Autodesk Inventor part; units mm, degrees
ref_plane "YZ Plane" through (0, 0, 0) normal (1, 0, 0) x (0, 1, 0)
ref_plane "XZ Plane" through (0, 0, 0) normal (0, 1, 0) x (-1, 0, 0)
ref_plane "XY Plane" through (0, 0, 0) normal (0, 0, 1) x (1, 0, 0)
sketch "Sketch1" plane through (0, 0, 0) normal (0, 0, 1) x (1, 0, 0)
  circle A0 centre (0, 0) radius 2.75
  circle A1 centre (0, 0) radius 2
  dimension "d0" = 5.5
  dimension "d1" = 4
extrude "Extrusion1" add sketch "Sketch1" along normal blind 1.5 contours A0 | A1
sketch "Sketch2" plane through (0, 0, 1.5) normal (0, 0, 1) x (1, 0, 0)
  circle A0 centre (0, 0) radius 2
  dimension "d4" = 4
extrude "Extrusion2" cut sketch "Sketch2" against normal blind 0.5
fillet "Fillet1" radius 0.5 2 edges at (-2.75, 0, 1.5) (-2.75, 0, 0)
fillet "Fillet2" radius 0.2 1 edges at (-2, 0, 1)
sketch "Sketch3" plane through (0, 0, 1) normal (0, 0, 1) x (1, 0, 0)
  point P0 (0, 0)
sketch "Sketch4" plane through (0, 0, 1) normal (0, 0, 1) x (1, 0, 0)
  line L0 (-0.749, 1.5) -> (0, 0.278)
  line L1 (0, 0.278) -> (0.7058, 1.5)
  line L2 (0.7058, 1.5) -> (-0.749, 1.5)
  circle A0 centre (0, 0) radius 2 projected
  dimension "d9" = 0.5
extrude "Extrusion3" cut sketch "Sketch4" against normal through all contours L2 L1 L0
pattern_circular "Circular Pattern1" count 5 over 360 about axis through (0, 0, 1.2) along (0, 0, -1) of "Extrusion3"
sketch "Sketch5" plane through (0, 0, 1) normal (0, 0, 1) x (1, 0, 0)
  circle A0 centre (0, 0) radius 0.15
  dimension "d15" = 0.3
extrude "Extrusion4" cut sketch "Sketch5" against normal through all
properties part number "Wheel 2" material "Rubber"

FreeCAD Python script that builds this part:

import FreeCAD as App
import Part
import Sketcher
Q = App.Units.Quantity


def edges_at(feature, points):
    """Names of the edges that pass closest to the given points."""
    edges = feature.Shape.Edges
    near = lambda p: min(range(len(edges)), key=lambda i: edges[i].distToShape(Part.Vertex(*p))[0])
    return sorted({f"Edge{near(p) + 1}" for p in points})


def add_polygon(sketch, points):
    """Adds a closed chain of lines whose ends are joined by coincident constraints."""
    first, n = sketch.GeometryCount, len(points)
    for a, b in zip(points, points[1:] + points[:1]):
        sketch.addGeometry(Part.LineSegment(App.Vector(*a, 0), App.Vector(*b, 0)), False)
    for i in range(n):
        sketch.addConstraint(Sketcher.Constraint("Coincident", first + i, 2, first + (i + 1) % n, 1))

doc = App.newDocument("Part")
body = doc.addObject("PartDesign::Body", "Body")

# Sketch on XY plane
sketch1 = body.newObject("Sketcher::SketchObject", "Sketch")
sketch1.AttachmentSupport = (doc.getObject("XY_Plane"), [""])
sketch1.MapMode = "FlatFace"
sketch1.addGeometry(Part.Circle(App.Vector(0, 0, 0), App.Vector(0, 0, 1), 2.8), False)
sketch1.addConstraint([
    Sketcher.Constraint("Coincident", 0, 3, -1, 1),
    Sketcher.Constraint("Diameter", 0, 5.5),
])
pad1 = body.newObject("PartDesign::Pad", "Pad")
pad1.Profile = sketch1
pad1.Length = 1.5

# Sketch on XY plane
sketch2 = body.newObject("Sketcher::SketchObject", "Sketch001")
sketch2.AttachmentSupport = (doc.getObject("XY_Plane"), [""])
sketch2.MapMode = "FlatFace"
sketch2.AttachmentOffset = App.Placement(App.Vector(0, 0, 1.5), App.Rotation())
sketch2.addGeometry(Part.Circle(App.Vector(0, 0, 0), App.Vector(0, 0, 1), 2), False)
sketch2.addConstraint([
    Sketcher.Constraint("Coincident", 0, 3, -1, 1),
    Sketcher.Constraint("Diameter", 0, 4.0),
])
pocket1 = body.newObject("PartDesign::Pocket", "Pocket")
pocket1.Profile = sketch2
pocket1.Length = 0.5
doc.recompute()

fillet = body.newObject("PartDesign::Fillet", "Fillet")
fillet.Base = (pocket1, edges_at(pocket1, [(-2.75, 0, 1.5), (-2.75, 0, 0)]))
fillet.Radius = 0.5
doc.recompute()

fillet2 = body.newObject("PartDesign::Fillet", "Fillet001")
fillet2.Base = (fillet, edges_at(fillet, [(-2, 0, 1)]))
fillet2.Radius = 0.2

# Sketch on XY plane
sketch3 = body.newObject("Sketcher::SketchObject", "Sketch002")
sketch3.AttachmentSupport = (doc.getObject("XY_Plane"), [""])
sketch3.MapMode = "FlatFace"
sketch3.AttachmentOffset = App.Placement(App.Vector(0, 0, 1), App.Rotation())
add_polygon(sketch3, [(0.7, 1.5), (-0.7, 1.5), (0, 0.3)])  # lines 0-2
sketch3.addConstraint([
    Sketcher.Constraint("Horizontal", 0),
    Sketcher.Constraint("PointOnObject", 1, 2, -2),
    Sketcher.Constraint("DistanceY", -1, 1, 0, 2, 1.5),
    Sketcher.Constraint("Angle", 2, Q("59.9902 deg")),
    Sketcher.Constraint("DistanceX", 0, 2, 0, 1, 1.4548),
    Sketcher.Constraint("DistanceX", 0, 2, -1, 1, 0.749),
])
pocket2 = body.newObject("PartDesign::Pocket", "Pocket001")
pocket2.Profile = sketch3
pocket2.Type = "ThroughAll"
doc.recompute()

polarpattern = body.newObject("PartDesign::PolarPattern", "PolarPattern")
polarpattern.Originals = [pocket2]
polarpattern.Axis = (doc.getObject("Z_Axis"), [""])
polarpattern.Angle = 360
polarpattern.Occurrences = 5
body.Tip = polarpattern

# Sketch on XY plane
sketch4 = body.newObject("Sketcher::SketchObject", "Sketch003")
sketch4.AttachmentSupport = (doc.getObject("XY_Plane"), [""])
sketch4.MapMode = "FlatFace"
sketch4.AttachmentOffset = App.Placement(App.Vector(0, 0, 1), App.Rotation())
sketch4.addGeometry(Part.Circle(App.Vector(0, 0, 0), App.Vector(0, 0, 1), 0.15), False)
sketch4.addConstraint([
    Sketcher.Constraint("Coincident", 0, 3, -1, 1),
    Sketcher.Constraint("Diameter", 0, 0.3),
])
pocket3 = body.newObject("PartDesign::Pocket", "Pocket002")
pocket3.Profile = sketch4
pocket3.Type = "ThroughAll"

doc.recompute()
